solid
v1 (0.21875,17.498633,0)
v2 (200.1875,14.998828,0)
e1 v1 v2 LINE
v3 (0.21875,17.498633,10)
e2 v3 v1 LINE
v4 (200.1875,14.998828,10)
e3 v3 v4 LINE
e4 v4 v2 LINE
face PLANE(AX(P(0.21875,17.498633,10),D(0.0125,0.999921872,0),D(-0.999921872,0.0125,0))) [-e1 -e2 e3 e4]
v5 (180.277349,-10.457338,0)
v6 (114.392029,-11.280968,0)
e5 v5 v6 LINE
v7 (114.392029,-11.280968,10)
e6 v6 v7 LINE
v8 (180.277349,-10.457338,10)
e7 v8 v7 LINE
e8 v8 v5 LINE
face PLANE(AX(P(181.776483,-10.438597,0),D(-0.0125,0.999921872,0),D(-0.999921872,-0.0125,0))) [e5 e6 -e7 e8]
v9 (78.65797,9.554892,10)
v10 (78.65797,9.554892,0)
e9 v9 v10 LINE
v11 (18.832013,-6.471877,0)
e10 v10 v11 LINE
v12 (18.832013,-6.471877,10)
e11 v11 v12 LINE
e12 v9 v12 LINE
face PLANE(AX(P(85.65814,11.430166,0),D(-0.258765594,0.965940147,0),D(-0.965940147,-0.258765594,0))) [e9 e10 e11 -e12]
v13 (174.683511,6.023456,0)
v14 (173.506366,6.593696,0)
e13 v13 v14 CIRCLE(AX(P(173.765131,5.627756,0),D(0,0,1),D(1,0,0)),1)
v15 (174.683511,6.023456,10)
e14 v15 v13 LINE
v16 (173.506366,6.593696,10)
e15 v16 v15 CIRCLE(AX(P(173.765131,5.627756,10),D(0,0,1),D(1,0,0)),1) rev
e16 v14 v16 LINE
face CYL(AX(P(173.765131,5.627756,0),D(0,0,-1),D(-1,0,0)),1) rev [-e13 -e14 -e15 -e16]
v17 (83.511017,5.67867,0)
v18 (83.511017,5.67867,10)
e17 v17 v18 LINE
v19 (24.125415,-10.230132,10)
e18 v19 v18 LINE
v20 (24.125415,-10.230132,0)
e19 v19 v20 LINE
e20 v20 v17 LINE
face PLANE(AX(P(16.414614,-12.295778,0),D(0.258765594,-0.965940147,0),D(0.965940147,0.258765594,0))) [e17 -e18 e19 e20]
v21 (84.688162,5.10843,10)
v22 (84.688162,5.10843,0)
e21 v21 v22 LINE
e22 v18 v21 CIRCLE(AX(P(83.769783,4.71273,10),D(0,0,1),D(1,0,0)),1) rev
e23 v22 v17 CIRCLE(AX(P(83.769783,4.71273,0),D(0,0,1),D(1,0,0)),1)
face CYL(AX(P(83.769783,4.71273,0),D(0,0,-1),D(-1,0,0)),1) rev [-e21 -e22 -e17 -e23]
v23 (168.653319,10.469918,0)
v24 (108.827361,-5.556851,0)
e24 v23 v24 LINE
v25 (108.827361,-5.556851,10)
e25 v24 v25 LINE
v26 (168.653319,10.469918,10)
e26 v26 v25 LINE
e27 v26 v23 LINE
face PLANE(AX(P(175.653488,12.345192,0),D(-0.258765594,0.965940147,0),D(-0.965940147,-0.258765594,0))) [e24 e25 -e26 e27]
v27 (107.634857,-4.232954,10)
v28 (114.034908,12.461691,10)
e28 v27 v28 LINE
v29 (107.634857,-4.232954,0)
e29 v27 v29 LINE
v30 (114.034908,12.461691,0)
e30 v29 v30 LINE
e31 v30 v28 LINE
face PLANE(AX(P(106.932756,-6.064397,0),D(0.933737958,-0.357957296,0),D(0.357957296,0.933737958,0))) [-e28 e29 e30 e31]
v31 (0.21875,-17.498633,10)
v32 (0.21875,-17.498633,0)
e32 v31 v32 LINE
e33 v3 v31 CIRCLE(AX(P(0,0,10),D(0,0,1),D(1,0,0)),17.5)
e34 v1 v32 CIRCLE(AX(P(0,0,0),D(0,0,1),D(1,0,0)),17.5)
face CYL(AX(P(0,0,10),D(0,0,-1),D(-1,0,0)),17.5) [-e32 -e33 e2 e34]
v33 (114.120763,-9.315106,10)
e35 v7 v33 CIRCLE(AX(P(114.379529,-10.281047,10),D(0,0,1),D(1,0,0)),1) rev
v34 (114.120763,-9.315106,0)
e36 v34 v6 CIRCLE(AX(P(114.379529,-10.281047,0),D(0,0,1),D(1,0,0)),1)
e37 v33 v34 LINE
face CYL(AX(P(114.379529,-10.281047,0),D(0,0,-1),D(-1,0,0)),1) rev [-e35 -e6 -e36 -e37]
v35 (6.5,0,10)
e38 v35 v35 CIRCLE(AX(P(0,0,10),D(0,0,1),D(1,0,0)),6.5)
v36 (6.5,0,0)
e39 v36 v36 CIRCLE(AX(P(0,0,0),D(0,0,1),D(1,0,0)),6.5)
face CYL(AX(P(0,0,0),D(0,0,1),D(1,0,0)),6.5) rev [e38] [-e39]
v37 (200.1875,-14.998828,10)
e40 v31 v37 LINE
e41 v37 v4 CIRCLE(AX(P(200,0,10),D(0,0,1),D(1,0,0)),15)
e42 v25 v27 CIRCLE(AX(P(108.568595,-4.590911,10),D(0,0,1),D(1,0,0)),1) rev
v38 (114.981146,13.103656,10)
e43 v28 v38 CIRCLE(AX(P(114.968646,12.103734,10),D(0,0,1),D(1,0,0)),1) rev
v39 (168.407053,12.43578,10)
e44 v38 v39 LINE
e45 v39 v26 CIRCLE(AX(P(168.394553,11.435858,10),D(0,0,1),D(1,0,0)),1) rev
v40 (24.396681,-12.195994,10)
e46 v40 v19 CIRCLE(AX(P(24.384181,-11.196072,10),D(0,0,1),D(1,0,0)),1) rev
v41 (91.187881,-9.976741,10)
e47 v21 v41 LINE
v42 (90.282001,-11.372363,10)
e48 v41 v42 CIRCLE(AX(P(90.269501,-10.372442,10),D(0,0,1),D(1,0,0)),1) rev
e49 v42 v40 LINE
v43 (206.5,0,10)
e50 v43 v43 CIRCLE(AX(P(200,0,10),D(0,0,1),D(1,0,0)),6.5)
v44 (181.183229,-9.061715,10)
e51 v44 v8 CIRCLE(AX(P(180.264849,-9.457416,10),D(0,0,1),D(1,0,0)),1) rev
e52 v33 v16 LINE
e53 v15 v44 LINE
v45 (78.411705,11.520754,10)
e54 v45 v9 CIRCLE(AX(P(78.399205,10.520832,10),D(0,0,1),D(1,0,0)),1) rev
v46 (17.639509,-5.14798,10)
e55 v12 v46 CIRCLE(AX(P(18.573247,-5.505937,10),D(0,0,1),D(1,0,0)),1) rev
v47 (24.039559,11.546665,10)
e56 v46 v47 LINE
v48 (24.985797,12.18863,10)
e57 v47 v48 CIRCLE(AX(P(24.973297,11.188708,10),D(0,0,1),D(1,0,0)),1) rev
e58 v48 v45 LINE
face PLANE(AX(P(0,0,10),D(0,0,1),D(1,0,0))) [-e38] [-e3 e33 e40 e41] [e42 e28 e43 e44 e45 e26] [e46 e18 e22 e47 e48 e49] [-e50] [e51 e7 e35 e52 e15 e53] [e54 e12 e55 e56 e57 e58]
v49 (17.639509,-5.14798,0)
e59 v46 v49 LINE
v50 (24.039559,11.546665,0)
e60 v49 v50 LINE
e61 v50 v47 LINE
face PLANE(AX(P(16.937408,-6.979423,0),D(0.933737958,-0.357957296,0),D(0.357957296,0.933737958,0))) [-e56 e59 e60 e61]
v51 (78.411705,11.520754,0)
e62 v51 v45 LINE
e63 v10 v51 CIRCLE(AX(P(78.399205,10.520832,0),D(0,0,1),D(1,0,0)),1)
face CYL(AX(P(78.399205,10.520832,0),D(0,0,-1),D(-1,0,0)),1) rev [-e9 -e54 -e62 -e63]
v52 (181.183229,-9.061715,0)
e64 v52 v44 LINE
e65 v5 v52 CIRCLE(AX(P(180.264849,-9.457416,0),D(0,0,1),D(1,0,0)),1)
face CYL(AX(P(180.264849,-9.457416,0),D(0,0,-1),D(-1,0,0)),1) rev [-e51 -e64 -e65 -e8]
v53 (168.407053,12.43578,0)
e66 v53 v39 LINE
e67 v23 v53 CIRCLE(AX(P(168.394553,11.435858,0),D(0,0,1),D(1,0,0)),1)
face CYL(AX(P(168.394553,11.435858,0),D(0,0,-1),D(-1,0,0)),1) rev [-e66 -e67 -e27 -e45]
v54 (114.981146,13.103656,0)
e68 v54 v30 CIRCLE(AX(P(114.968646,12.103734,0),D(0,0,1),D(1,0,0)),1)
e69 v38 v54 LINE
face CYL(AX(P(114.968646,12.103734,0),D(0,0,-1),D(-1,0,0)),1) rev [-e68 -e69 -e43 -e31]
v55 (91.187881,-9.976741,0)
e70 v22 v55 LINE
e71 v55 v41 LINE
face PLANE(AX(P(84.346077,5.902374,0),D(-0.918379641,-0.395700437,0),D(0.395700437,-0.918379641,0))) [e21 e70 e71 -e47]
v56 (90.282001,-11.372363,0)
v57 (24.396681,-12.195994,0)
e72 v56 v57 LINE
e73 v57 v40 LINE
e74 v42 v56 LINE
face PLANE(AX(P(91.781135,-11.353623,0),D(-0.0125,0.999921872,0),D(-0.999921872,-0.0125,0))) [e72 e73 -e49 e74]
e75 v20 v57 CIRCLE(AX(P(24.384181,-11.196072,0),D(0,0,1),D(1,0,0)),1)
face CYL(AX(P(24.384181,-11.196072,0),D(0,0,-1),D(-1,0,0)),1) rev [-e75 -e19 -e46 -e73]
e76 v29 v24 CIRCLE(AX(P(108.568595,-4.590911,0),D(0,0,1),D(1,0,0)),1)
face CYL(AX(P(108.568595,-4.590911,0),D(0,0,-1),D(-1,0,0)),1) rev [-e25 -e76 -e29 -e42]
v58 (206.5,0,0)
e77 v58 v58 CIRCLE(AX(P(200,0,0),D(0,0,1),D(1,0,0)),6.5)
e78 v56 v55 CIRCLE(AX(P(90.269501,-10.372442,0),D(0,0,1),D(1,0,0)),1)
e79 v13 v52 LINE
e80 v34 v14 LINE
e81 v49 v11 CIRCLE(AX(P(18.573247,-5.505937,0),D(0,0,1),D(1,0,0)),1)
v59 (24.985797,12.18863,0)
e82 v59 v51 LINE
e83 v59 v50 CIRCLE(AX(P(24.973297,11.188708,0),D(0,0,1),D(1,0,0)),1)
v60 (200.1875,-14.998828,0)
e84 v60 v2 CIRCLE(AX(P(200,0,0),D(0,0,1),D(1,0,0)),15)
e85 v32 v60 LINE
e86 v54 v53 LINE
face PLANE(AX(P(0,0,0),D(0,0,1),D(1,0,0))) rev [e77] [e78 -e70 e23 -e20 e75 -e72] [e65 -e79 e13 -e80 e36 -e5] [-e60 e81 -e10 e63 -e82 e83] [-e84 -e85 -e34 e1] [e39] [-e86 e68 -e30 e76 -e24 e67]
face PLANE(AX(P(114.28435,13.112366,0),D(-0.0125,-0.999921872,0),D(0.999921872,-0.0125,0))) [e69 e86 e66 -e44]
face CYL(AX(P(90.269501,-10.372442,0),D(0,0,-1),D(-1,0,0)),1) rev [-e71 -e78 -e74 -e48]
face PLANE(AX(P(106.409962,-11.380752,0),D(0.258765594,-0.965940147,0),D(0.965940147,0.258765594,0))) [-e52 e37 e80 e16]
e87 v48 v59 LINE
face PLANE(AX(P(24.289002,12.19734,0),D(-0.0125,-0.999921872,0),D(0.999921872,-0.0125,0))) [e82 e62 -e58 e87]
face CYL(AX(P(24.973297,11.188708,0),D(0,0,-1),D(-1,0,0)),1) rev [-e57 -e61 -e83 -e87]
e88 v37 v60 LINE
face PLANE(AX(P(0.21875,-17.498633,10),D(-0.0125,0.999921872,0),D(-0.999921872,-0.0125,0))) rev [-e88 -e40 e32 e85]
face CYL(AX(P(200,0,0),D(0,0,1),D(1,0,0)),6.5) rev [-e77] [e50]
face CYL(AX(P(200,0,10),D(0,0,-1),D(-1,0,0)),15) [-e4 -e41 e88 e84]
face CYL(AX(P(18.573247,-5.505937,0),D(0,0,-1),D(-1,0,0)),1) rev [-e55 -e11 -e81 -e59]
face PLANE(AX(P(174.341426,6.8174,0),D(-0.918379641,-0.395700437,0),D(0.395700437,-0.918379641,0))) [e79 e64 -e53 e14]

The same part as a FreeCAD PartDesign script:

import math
import FreeCAD as App
import Part
import Sketcher
from FreeCAD import Vector


def edges_at(feature, points):
    """Names of the edges that pass closest to the given points."""
    edges = feature.Shape.Edges
    near = lambda p: min(range(len(edges)), key=lambda i: edges[i].distToShape(Part.Vertex(*p))[0])
    return sorted({f"Edge{near(p) + 1}" for p in points})


def add_polygon(sketch, points):
    """Adds a closed chain of lines whose ends are joined by coincident constraints."""
    first, n = sketch.GeometryCount, len(points)
    for a, b in zip(points, points[1:] + points[:1]):
        sketch.addGeometry(Part.LineSegment(App.Vector(*a, 0), App.Vector(*b, 0)), False)
    for i in range(n):
        sketch.addConstraint(Sketcher.Constraint("Coincident", first + i, 2, first + (i + 1) % n, 1))

doc = App.newDocument("Part")
params = doc.addObject("Spreadsheet::Sheet", "Params")
for row, (alias, value) in enumerate([
    ("sketch1_radius", "15 mm"),
    ("sketch1_radius2", "17.5 mm"),
    ("pad1_length", "10 mm"),
    ("sketch2_diameter", "13 mm"),
    ("pocket1_length", "10 mm"),
    ("pocket2_length", "10 mm"),
    ("fillet_radius", "1 mm"),
    ("sketch4_diameter", "13 mm"),
    ("pocket3_length", "10 mm"),
], start=1):
    params.set(f"A{row}", alias)
    params.set(f"B{row}", "=" + value)
    params.setAlias(f"B{row}", alias)

body = doc.addObject("PartDesign::Body", "Body")

# Sketch on XY plane
sketch1 = body.newObject("Sketcher::SketchObject", "Sketch")
sketch1.AttachmentSupport = (doc.getObject("XY_Plane"), [""])
sketch1.MapMode = "FlatFace"
sketch1.addGeometry(Part.LineSegment(Vector(200, 15, 0), Vector(0, 17, 0)), False)
sketch1.addGeometry(Part.ArcOfCircle(Part.Circle(Vector(0, 0, 0), Vector(0, 0, 1), 18), math.radians(89), math.radians(271)), False)
sketch1.addGeometry(Part.LineSegment(Vector(0, -17, 0), Vector(200, -15, 0)), False)
sketch1.addGeometry(Part.ArcOfCircle(Part.Circle(Vector(200, 0, 0), Vector(0, 0, 1), 15), math.radians(-89), math.radians(89)), False)
sketch1.addConstraint(Sketcher.Constraint("Tangent", 0, 2, 1, 1))
sketch1.addConstraint(Sketcher.Constraint("Tangent", 1, 2, 2, 1))
sketch1.addConstraint(Sketcher.Constraint("Tangent", 2, 2, 3, 1))
sketch1.addConstraint(Sketcher.Constraint("Tangent", 3, 2, 0, 1))
sketch1.addConstraint(Sketcher.Constraint("Coincident", 1, 3, -1, 1))
sketch1.addConstraint(Sketcher.Constraint("PointOnObject", 3, 3, -1))
sketch1.addConstraint(Sketcher.Constraint("Radius", 3, 15.0))
sketch1.addConstraint(Sketcher.Constraint("Radius", 1, 17.5))
sketch1.addConstraint(Sketcher.Constraint("DistanceX", -1, 1, 3, 3, 200.0))
sketch1.setExpression("Constraints[6]", "Params.sketch1_radius")
sketch1.setExpression("Constraints[7]", "Params.sketch1_radius2")
pad1 = body.newObject("PartDesign::Pad", "Pad")
pad1.Profile = sketch1
pad1.setExpression("Length", "Params.pad1_length")

# Sketch on XY plane
sketch2 = body.newObject("Sketcher::SketchObject", "Sketch001")
sketch2.AttachmentSupport = (doc.getObject("XY_Plane"), [""])
sketch2.MapMode = "FlatFace"
sketch2.AttachmentOffset = App.Placement(Vector(0, 0, 10), App.Rotation())
sketch2.addGeometry(Part.Circle(Vector(0, 0, 0), Vector(0, 0, 1), 6), False)
sketch2.addConstraint(Sketcher.Constraint("Coincident", 0, 3, -1, 1))
sketch2.addConstraint(Sketcher.Constraint("Diameter", 0, 13.0))
sketch2.setExpression("Constraints[1]", "Params.sketch2_diameter")
pocket1 = body.newObject("PartDesign::Pocket", "Pocket")
pocket1.Profile = sketch2
pocket1.setExpression("Length", "Params.pocket1_length")

# Sketch on XY plane
sketch3 = body.newObject("Sketcher::SketchObject", "Sketch002")
sketch3.AttachmentSupport = (doc.getObject("XY_Plane"), [""])
sketch3.MapMode = "FlatFace"
sketch3.AttachmentOffset = App.Placement(Vector(0, 0, 10), App.Rotation())
add_polygon(sketch3, [(86, 11), (24, 12), (17, -7)])  # lines 0-2
add_polygon(sketch3, [(84, 6), (16, -12), (92, -11)])  # lines 3-5
add_polygon(sketch3, [(114, 13), (107, -6), (176, 12)])  # lines 6-8
add_polygon(sketch3, [(106, -11), (182, -10), (174, 7)])  # lines 9-11
sketch3.addConstraint(Sketcher.Constraint("Parallel", 2, 3))
sketch3.addConstraint(Sketcher.Constraint("Parallel", 1, 6))
sketch3.addConstraint(Sketcher.Constraint("Parallel", 3, 7))
sketch3.addConstraint(Sketcher.Constraint("Parallel", 0, 8))
sketch3.addConstraint(Sketcher.Constraint("Parallel", 4, 9))
sketch3.addConstraint(Sketcher.Constraint("Parallel", 5, 10))
sketch3.addConstraint(Sketcher.Constraint("Parallel", 7, 11))
sketch3.addConstraint(Sketcher.Constraint("Equal", 1, 6))
sketch3.addConstraint(Sketcher.Constraint("Equal", 4, 9))
sketch3.addConstraint(Sketcher.Constraint("DistanceX", -1, 1, 0, 2, 24.289002))
sketch3.addConstraint(Sketcher.Constraint("DistanceY", -1, 1, 10, 2, 6.8174))
sketch3.addConstraint(Sketcher.Constraint("DistanceY", 4, 2, 1, 2, 4.3742))
sketch3.addConstraint(Sketcher.Constraint("DistanceY", 2, 2, 8, 2, 1.6822))
sketch3.addConstraint(Sketcher.Constraint("DistanceY", 9, 2, 6, 2, 4.3742))
sketch3.addConstraint(Sketcher.Constraint("Distance", 1, 20.537628))
sketch3.addConstraint(Sketcher.Constraint("Distance", 2, 71.143882))
sketch3.addConstraint(Sketcher.Constraint("Distance", 4, 75.37241))
sketch3.addConstraint(Sketcher.Constraint("Distance", 5, 18.789612))
sketch3.addConstraint(Sketcher.Constraint("DistanceY", -1, 1, 0, 2, 12.19734))
sketch3.addConstraint(Sketcher.Constraint("DistanceX", -1, 1, 1, 2, 16.937408))
sketch3.addConstraint(Sketcher.Constraint("DistanceX", -1, 1, 2, 2, 85.65814))
sketch3.addConstraint(Sketcher.Constraint("DistanceX", -1, 1, 8, 2, 114.28435))
sketch3.addConstraint(Sketcher.Constraint("DistanceX", 3, 2, 0, 2, 7.874388))
sketch3.addConstraint(Sketcher.Constraint("DistanceX", 4, 2, 9, 2, 89.995348))
pocket2 = body.newObject("PartDesign::Pocket", "Pocket001")
pocket2.Profile = sketch3
pocket2.setExpression("Length", "Params.pocket2_length")
doc.recompute()

fillet = body.newObject("PartDesign::Fillet", "Fillet")
fillet.Base = (pocket2, edges_at(pocket2, [
    (84.346, 5.902, 5),
    (91.781, -11.354, 5),
    (16.415, -12.296, 5),
    (175.653, 12.345, 5),
    (106.933, -6.064, 5),
    (114.284, 13.112, 5),
    (174.341, 6.817, 5),
    (181.776, -10.439, 5),
    (106.41, -11.381, 5),
    (85.658, 11.43, 5),
    (16.937, -6.979, 5),
    (24.289, 12.197, 5),
]))
fillet.setExpression("Radius", "Params.fillet_radius")

# Sketch on XY plane
sketch4 = body.newObject("Sketcher::SketchObject", "Sketch003")
sketch4.AttachmentSupport = (doc.getObject("XY_Plane"), [""])
sketch4.MapMode = "FlatFace"
sketch4.AttachmentOffset = App.Placement(Vector(0, 0, 10), App.Rotation())
sketch4.addGeometry(Part.Circle(Vector(200, 0, 0), Vector(0, 0, 1), 6), False)
sketch4.addConstraint(Sketcher.Constraint("PointOnObject", 0, 3, -1))
sketch4.addConstraint(Sketcher.Constraint("Diameter", 0, 13.0))
sketch4.addConstraint(Sketcher.Constraint("DistanceX", -1, 1, 0, 3, 200.0))
sketch4.setExpression("Constraints[1]", "Params.sketch4_diameter")
pocket3 = body.newObject("PartDesign::Pocket", "Pocket002")
pocket3.Profile = sketch4
pocket3.setExpression("Length", "Params.pocket3_length")

doc.recompute()
